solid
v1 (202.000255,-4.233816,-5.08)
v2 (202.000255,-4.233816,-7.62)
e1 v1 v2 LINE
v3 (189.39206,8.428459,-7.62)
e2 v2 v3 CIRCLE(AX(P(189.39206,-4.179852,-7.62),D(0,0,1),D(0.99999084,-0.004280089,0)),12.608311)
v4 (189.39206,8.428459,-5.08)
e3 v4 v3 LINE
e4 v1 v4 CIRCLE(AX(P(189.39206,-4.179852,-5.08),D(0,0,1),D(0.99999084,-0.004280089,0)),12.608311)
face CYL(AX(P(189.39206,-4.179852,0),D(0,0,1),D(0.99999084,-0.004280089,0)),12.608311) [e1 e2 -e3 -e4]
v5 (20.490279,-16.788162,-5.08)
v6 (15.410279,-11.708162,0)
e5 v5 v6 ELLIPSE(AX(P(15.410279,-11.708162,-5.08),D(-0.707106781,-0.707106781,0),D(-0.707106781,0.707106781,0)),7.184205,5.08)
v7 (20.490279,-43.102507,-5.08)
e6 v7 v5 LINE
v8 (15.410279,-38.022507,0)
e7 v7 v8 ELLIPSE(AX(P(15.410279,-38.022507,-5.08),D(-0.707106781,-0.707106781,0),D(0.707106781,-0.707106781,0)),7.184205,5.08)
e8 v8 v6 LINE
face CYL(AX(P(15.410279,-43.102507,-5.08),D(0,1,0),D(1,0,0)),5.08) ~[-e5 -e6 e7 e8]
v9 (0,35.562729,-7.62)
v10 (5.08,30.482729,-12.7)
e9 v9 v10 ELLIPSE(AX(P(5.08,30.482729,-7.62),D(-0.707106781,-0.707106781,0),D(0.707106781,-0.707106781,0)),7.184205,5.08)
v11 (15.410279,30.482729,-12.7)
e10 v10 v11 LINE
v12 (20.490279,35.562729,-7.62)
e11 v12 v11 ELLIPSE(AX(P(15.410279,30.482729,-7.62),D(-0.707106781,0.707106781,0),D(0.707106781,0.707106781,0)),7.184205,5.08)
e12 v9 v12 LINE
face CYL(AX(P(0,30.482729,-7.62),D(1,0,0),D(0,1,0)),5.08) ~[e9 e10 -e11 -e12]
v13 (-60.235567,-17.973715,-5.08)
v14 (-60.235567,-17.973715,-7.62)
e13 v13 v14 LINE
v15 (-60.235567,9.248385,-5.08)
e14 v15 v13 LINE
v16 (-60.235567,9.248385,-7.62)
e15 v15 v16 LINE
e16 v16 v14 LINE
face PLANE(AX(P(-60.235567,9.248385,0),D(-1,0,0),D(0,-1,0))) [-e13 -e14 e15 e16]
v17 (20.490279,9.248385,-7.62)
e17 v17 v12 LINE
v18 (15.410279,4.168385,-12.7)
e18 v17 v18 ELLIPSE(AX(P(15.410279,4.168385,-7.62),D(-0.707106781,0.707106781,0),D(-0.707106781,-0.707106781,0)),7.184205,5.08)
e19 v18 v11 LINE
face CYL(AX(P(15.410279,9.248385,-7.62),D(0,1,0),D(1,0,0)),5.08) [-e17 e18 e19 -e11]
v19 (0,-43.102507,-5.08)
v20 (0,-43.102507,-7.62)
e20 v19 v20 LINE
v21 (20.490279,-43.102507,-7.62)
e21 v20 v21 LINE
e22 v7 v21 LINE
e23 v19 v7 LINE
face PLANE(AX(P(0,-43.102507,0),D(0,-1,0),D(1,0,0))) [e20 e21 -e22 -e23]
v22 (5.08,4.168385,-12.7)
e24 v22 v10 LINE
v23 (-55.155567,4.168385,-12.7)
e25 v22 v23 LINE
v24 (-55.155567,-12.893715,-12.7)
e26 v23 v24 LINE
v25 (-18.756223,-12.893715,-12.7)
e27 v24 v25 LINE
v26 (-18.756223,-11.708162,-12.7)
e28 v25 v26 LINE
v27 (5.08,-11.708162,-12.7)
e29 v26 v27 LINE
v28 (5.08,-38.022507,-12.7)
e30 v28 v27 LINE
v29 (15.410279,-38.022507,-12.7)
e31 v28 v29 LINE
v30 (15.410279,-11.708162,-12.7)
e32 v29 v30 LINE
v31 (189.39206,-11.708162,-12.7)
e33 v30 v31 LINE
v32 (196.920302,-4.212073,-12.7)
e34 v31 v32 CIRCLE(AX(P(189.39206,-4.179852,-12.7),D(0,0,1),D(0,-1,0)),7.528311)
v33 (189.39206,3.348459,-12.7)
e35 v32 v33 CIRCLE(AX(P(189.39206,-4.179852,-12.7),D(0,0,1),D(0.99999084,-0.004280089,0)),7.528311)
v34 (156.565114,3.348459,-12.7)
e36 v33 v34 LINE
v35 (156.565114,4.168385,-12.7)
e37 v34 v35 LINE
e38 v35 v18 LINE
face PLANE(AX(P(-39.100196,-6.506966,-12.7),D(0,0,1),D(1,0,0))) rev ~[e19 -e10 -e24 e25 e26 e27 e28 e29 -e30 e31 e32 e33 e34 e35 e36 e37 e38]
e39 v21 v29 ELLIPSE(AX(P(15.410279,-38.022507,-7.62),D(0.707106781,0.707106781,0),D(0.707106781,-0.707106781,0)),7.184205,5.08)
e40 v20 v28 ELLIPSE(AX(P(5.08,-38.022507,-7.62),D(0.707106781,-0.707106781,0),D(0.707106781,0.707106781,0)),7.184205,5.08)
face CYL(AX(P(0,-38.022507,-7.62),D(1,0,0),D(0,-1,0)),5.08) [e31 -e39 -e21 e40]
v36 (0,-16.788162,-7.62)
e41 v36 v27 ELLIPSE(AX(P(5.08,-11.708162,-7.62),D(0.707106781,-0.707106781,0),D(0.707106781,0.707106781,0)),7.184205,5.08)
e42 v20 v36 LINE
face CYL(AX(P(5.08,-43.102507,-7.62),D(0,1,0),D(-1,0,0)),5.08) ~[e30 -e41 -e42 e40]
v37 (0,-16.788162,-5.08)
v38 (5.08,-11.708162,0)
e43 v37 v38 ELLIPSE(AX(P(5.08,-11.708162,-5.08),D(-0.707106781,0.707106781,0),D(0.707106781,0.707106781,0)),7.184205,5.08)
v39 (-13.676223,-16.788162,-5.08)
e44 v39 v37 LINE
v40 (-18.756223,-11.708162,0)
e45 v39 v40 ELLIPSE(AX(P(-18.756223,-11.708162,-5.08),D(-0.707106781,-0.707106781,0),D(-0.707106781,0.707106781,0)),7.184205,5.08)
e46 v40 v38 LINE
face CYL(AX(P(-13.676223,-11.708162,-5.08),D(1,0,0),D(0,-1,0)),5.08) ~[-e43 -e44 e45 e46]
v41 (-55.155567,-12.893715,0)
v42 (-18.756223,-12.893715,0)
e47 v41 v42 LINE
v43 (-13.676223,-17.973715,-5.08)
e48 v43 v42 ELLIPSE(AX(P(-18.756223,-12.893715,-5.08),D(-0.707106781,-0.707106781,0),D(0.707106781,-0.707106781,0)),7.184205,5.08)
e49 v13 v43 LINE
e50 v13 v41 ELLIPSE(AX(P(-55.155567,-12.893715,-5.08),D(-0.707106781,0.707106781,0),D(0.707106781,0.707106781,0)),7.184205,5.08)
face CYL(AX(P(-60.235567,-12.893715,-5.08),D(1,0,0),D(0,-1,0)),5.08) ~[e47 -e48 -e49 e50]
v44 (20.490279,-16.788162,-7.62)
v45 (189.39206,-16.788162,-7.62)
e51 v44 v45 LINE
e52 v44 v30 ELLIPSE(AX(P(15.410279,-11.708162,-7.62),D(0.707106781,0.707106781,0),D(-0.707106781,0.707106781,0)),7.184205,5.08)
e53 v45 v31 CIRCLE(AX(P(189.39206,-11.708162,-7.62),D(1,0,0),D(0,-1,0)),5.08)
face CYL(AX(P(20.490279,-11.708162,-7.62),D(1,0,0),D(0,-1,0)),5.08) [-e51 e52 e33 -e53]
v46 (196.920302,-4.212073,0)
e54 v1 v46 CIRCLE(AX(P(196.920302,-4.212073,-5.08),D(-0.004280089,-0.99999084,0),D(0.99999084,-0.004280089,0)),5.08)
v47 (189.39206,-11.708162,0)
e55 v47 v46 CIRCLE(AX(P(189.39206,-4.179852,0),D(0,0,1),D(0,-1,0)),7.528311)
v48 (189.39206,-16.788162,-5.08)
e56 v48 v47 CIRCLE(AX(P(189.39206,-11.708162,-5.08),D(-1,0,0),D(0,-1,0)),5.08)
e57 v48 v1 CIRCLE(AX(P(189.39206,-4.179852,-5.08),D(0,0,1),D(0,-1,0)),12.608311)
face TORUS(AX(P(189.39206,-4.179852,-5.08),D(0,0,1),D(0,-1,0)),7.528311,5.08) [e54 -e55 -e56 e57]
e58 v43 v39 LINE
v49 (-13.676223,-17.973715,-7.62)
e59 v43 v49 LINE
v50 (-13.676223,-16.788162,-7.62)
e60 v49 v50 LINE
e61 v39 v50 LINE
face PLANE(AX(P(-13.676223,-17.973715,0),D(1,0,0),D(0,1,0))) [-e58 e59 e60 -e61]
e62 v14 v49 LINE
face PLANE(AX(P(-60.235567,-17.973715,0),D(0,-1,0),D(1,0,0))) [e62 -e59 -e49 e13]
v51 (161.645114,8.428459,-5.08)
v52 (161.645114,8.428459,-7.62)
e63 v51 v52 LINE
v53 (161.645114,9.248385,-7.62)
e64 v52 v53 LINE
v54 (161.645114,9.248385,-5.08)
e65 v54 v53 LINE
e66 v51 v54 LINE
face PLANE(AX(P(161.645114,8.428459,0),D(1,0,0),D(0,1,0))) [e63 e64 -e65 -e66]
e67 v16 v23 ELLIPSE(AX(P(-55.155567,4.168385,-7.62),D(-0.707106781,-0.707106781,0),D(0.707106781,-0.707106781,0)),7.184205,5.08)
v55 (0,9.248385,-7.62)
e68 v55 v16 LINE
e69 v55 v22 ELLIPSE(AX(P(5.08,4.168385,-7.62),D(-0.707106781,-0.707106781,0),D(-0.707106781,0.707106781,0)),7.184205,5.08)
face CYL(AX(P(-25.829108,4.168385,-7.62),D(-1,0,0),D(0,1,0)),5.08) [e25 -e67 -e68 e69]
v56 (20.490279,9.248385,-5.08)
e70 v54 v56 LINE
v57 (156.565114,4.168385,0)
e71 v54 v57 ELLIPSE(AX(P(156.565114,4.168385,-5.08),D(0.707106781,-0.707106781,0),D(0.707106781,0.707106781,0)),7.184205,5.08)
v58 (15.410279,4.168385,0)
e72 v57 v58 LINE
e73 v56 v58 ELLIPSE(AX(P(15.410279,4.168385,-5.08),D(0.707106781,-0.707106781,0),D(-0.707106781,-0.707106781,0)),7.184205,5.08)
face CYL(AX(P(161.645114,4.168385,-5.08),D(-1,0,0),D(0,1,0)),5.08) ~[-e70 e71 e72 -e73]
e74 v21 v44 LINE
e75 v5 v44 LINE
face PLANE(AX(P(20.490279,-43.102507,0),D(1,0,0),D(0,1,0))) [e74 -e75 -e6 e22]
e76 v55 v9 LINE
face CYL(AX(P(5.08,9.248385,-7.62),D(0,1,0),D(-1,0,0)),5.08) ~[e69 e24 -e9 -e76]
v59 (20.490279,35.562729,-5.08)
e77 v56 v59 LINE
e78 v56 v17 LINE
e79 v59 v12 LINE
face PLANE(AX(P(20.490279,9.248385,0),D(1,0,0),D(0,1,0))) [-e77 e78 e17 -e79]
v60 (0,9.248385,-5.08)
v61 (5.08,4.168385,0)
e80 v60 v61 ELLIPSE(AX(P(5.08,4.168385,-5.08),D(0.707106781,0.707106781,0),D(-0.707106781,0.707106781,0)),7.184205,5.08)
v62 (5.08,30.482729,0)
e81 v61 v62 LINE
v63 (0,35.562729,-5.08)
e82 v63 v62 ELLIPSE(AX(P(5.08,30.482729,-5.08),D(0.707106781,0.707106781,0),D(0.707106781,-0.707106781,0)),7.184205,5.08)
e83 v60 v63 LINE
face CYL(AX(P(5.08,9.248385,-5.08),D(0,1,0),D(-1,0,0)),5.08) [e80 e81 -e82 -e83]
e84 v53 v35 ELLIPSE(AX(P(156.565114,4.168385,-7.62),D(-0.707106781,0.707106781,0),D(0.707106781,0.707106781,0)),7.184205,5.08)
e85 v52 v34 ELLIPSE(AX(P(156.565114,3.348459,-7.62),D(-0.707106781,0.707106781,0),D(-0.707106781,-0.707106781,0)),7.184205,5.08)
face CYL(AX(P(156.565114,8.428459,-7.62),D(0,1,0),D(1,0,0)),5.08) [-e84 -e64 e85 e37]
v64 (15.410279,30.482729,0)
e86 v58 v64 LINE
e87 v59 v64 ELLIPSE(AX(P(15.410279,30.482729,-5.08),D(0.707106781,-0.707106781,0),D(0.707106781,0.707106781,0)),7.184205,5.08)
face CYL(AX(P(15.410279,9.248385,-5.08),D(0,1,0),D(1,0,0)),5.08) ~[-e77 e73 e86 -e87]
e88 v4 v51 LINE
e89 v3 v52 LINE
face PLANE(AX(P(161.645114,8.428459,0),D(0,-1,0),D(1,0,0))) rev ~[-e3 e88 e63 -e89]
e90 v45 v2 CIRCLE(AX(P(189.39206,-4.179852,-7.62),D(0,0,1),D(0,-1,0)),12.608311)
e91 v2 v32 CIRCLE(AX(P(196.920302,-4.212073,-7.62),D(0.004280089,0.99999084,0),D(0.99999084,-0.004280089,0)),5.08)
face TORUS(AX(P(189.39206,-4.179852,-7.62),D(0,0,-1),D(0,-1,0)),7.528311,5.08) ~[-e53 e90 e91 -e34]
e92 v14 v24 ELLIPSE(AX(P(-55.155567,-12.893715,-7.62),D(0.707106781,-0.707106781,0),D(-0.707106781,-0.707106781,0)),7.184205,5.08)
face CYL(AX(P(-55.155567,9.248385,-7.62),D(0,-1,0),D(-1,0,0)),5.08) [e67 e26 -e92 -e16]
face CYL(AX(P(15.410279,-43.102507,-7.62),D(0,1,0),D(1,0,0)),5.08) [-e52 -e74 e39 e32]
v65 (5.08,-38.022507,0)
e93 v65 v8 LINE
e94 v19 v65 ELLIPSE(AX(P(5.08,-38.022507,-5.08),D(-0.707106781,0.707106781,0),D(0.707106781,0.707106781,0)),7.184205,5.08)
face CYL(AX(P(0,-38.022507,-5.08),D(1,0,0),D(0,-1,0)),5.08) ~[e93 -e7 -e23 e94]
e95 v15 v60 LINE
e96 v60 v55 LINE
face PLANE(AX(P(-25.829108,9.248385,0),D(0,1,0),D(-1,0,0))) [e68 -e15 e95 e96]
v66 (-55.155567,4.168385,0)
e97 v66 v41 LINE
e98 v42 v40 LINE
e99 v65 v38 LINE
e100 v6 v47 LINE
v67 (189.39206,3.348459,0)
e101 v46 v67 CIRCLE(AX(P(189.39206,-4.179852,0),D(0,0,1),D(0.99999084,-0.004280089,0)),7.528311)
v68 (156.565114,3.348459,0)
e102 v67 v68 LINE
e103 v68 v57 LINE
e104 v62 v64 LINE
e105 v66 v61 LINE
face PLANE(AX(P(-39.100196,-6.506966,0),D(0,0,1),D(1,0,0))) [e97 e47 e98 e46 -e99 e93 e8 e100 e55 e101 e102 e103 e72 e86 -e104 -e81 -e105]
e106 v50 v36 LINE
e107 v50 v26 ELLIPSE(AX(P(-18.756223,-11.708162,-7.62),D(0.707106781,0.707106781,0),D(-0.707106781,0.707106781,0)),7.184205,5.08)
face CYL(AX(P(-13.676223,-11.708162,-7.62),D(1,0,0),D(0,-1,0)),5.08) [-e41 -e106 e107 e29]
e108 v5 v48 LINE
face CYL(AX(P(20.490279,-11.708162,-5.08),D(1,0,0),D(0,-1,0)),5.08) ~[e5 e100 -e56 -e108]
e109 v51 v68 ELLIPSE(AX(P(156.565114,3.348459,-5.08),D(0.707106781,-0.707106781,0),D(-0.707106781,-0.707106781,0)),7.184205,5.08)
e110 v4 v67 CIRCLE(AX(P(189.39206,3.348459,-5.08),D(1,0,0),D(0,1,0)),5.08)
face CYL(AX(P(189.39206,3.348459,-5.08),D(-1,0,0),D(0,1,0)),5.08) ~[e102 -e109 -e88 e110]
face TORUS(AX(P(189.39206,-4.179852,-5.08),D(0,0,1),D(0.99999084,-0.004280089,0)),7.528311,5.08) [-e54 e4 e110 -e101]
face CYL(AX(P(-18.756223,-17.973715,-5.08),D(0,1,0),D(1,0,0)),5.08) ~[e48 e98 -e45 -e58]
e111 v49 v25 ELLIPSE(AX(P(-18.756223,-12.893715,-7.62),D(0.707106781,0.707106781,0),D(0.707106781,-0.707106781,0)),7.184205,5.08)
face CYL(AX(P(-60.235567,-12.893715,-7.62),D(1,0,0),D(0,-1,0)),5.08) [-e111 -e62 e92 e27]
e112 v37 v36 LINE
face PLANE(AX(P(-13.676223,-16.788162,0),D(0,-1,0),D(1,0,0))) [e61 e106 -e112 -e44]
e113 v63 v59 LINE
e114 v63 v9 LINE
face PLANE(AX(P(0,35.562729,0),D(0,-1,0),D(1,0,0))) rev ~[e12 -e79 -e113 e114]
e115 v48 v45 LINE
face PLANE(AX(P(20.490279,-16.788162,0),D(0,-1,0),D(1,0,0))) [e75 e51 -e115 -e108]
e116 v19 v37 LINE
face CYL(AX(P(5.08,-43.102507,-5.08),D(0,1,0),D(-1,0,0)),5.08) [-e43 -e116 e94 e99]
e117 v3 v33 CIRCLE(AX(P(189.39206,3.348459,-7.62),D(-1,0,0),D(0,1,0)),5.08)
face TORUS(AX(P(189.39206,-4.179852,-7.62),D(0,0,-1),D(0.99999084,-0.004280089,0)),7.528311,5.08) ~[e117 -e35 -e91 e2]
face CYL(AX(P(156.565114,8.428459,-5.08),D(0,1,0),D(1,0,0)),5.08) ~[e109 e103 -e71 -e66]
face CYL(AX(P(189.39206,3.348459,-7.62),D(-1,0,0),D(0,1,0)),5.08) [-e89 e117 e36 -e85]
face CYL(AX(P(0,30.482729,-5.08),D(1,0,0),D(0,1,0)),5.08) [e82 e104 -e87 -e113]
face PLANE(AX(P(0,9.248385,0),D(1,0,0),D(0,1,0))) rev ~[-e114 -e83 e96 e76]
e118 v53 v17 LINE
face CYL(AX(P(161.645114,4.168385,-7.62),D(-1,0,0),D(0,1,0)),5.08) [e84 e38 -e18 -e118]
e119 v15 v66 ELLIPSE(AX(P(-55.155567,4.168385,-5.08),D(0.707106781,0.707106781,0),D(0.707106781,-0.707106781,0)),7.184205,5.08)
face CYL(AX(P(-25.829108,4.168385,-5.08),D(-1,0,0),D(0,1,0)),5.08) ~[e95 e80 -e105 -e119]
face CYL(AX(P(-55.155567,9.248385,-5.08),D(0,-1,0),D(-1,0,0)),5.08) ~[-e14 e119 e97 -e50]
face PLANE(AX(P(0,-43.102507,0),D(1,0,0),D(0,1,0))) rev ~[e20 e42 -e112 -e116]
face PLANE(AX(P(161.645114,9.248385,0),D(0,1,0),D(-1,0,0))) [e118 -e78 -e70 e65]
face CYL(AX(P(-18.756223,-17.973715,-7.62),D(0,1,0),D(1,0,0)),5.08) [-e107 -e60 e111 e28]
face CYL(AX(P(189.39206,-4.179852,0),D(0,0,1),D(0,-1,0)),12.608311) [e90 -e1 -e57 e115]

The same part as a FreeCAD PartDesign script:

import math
import FreeCAD as App
import Part
import Sketcher

V = App.Vector


def edges_at(feature, points):
    """Names of the edges that pass closest to the given points."""
    edges = feature.Shape.Edges
    near = lambda p: min(range(len(edges)), key=lambda i: edges[i].distToShape(Part.Vertex(*p))[0])
    return sorted({f"Edge{near(p) + 1}" for p in points})

doc = App.newDocument("Part")
params = doc.addObject("Spreadsheet::Sheet", "Params")
for row, (alias, value) in enumerate([
    ("pad1_length", "0.5 in"),
    ("fillet_radius", "0.2 in"),
], start=1):
    params.set(f"A{row}", alias)
    params.set(f"B{row}", "=" + value)
    params.setAlias(f"B{row}", alias)

body = doc.addObject("PartDesign::Body", "Body")

# Sketch on XY plane
sketch1 = doc.addObject("Sketcher::SketchObject", "Sketch")
body.addObject(sketch1)
sketch1.AttachmentSupport = (doc.XY_Plane, [""])
sketch1.MapMode = "FlatFace"
sketch1.addGeometry([
    Part.LineSegment(V(-25.829108, 9.248385, 0), V(-60.235567, 9.248385, 0)),  # 0
    Part.LineSegment(V(-60.235567, 9.248385, 0), V(-60.235567, -17.973715, 0)),  # 1
    Part.LineSegment(V(-60.235567, -17.973715, 0), V(-13.676223, -17.973715, 0)),  # 2
    Part.LineSegment(V(-13.676223, -17.973715, 0), V(-13.676223, -16.788162, 0)),  # 3
    Part.LineSegment(V(-13.676223, -16.788162, 0), V(0, -16.788162, 0)),  # 4
    Part.LineSegment(V(0, -16.788162, 0), V(0, -43.102507, 0)),  # 5
    Part.LineSegment(V(0, -43.102507, 0), V(20.490279, -43.102507, 0)),  # 6
    Part.LineSegment(V(20.490279, -43.102507, 0), V(20.490279, -16.788162, 0)),  # 7
    Part.LineSegment(V(20.490279, -16.788162, 0), V(189.39206, -16.788162, 0)),  # 8
    Part.ArcOfCircle(Part.Circle(V(189.39206, -4.179852, 0), V(0, 0, 1), 12.608311), math.radians(-90), math.radians(-0.245232)),  # 9
    Part.ArcOfCircle(Part.Circle(V(189.39206, -4.179852, 0), V(0, 0, 1), 12.608311), math.radians(-0.245232), math.radians(90)),  # 10
    Part.LineSegment(V(189.39206, 8.428459, 0), V(161.645114, 8.428459, 0)),  # 11
    Part.LineSegment(V(161.645114, 8.428459, 0), V(161.645114, 9.248385, 0)),  # 12
    Part.LineSegment(V(161.645114, 9.248385, 0), V(20.490279, 9.248385, 0)),  # 13
    Part.LineSegment(V(20.490279, 9.248385, 0), V(20.490279, 35.562729, 0)),  # 14
    Part.LineSegment(V(20.490279, 35.562729, 0), V(0, 35.562729, 0)),  # 15
    Part.LineSegment(V(0, 35.562729, 0), V(0, 9.248385, 0)),  # 16
    Part.LineSegment(V(0, 9.248385, 0), V(-13.676223, 9.248385, 0)),  # 17
    Part.LineSegment(V(-13.676223, 9.248385, 0), V(-25.829108, 9.248385, 0)),  # 18
], False)
sketch1.addConstraint([
    Sketcher.Constraint("Coincident", 0, 2, 1, 1),
    Sketcher.Constraint("Coincident", 1, 2, 2, 1),
    Sketcher.Constraint("Coincident", 2, 2, 3, 1),
    Sketcher.Constraint("Coincident", 3, 2, 4, 1),
    Sketcher.Constraint("Coincident", 4, 2, 5, 1),
    Sketcher.Constraint("Coincident", 5, 2, 6, 1),
    Sketcher.Constraint("Coincident", 6, 2, 7, 1),
    Sketcher.Constraint("Coincident", 7, 2, 8, 1),
    Sketcher.Constraint("Tangent", 8, 2, 9, 1),
    Sketcher.Constraint("Tangent", 9, 2, 10, 1),
    Sketcher.Constraint("Tangent", 10, 2, 11, 1),
    Sketcher.Constraint("Coincident", 11, 2, 12, 1),
    Sketcher.Constraint("Coincident", 12, 2, 13, 1),
    Sketcher.Constraint("Coincident", 13, 2, 14, 1),
    Sketcher.Constraint("Coincident", 14, 2, 15, 1),
    Sketcher.Constraint("Coincident", 15, 2, 16, 1),
    Sketcher.Constraint("Coincident", 16, 2, 17, 1),
    Sketcher.Constraint("Coincident", 17, 2, 18, 1),
    Sketcher.Constraint("Coincident", 18, 2, 0, 1),
    Sketcher.Constraint("Horizontal", 0),
    Sketcher.Constraint("Vertical", 1),
    Sketcher.Constraint("Horizontal", 2),
    Sketcher.Constraint("Vertical", 3),
    Sketcher.Constraint("Horizontal", 4),
    Sketcher.Constraint("Vertical", 5),
    Sketcher.Constraint("Horizontal", 6),
    Sketcher.Constraint("Vertical", 7),
    Sketcher.Constraint("Horizontal", 8),
    Sketcher.Constraint("Horizontal", 11),
    Sketcher.Constraint("Vertical", 12),
    Sketcher.Constraint("Horizontal", 13),
    Sketcher.Constraint("Vertical", 14),
    Sketcher.Constraint("Horizontal", 15),
    Sketcher.Constraint("Vertical", 16),
    Sketcher.Constraint("Horizontal", 17),
    Sketcher.Constraint("Horizontal", 18),
    Sketcher.Constraint("Equal", 9, 10),
    Sketcher.Constraint("PointOnObject", 4, 2, -2),
    Sketcher.Constraint("PointOnObject", 15, 2, -2),
    Sketcher.Constraint("Horizontal", 4, 2, 7, 2),
    Sketcher.Constraint("Horizontal", 0, 2, 12, 2),
    Sketcher.Constraint("Vertical", 7, 2, 13, 2),
    Sketcher.Constraint("Vertical", 3, 2, 17, 2),
    Sketcher.Constraint("Equal", 7, 14),
    Sketcher.Constraint("Radius", 9, 12.608311),
    Sketcher.Constraint("DistanceY", 1, 2, 1, 1, 27.222101),
    Sketcher.Constraint("DistanceX", 0, 2, 0, 1, 34.406459),
    Sketcher.Constraint("DistanceX", 6, 1, 6, 2, 20.490279),
    Sketcher.Constraint("DistanceX", 8, 1, 8, 2, 168.901781),
    Sketcher.Constraint("DistanceX", 2, 1, 2, 2, 46.559344),
    Sketcher.Constraint("DistanceX", 4, 1, 4, 2, 13.676223),
    Sketcher.Constraint("DistanceX", 11, 2, 11, 1, 27.746946),
    Sketcher.Constraint("DistanceY", 3, 1, 3, 2, 1.185553),
    Sketcher.Constraint("DistanceY", 5, 2, 5, 1, 26.314344),
    Sketcher.Constraint("DistanceY", 9, 3, -1, 1, 4.179852),
    Sketcher.Constraint("DistanceY", 6, 2, 9, 2, 38.86869),
])
pad1 = doc.addObject("PartDesign::Pad", "Pad")
body.addObject(pad1)
pad1.Profile = sketch1
pad1.setExpression("Length", "Params.pad1_length")
pad1.Reversed = True
doc.recompute()

fillet = doc.addObject("PartDesign::Fillet", "Fillet")
body.addObject(fillet)
fillet.Base = (pad1, edges_at(pad1, [
    (-36.956, -17.974, 0),
    (-60.236, -4.363, 0),
    (-13.676, -17.381, 0),
    (-6.838, -16.788, 0),
    (0, -29.945, 0),
    (10.245, -43.103, 0),
    (20.49, -29.945, 0),
    (104.941, -16.788, 0),
    (198.327, 4.716, 0),
    (175.519, 8.428, 0),
    (161.645, 8.838, 0),
    (91.068, 9.248, 0),
    (20.49, 22.406, 0),
    (10.245, 35.563, 0),
    (0, 22.406, 0),
    (-43.032, 9.248, 0),
    (-60.236, -4.363, -12.7),
    (-36.956, -17.974, -12.7),
    (-13.676, -17.381, -12.7),
    (-6.838, -16.788, -12.7),
    (0, -29.945, -12.7),
    (10.245, -43.103, -12.7),
    (20.49, -29.945, -12.7),
    (104.941, -16.788, -12.7),
    (198.327, 4.716, -12.7),
    (175.519, 8.428, -12.7),
    (161.645, 8.838, -12.7),
    (91.068, 9.248, -12.7),
    (20.49, 22.406, -12.7),
    (10.245, 35.563, -12.7),
    (0, 22.406, -12.7),
    (-43.032, 9.248, -12.7),
]))
fillet.setExpression("Radius", "Params.fillet_radius")

doc.recompute()
